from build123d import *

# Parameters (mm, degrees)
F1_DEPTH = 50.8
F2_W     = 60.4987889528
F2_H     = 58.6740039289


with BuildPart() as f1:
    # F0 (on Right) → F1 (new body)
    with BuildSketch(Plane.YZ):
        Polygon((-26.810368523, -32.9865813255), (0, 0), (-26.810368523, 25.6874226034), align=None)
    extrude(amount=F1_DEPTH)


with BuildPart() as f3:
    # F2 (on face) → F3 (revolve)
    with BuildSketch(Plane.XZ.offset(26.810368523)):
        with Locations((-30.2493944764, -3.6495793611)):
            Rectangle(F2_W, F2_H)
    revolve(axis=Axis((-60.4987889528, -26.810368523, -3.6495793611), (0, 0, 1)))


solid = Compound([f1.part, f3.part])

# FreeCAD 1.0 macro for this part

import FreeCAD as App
import Part
import Sketcher
from FreeCAD import Vector
Q = App.Units.Quantity

doc = App.newDocument("Part")
body = doc.addObject("PartDesign::Body", "Body")

sketch1 = body.newObject("Sketcher::SketchObject", "Sketch")
sketch1.AttachmentSupport = (doc.getObject("YZ_Plane"), [""])
sketch1.MapMode = "FlatFace"
sketch1.addGeometry([
    Part.LineSegment(Vector(-27, -33, 0), Vector(0, 0, 0)),
    Part.LineSegment(Vector(0, 0, 0), Vector(-27, 26, 0)),
    Part.LineSegment(Vector(-27, 26, 0), Vector(-27, -33, 0)),
], False)
sketch1.addConstraint([
    Sketcher.Constraint("Coincident", 0, 2, 1, 1),
    Sketcher.Constraint("Coincident", 1, 2, 2, 1),
    Sketcher.Constraint("Coincident", 2, 2, 0, 1),
    Sketcher.Constraint("Vertical", 2),
    Sketcher.Constraint("Coincident", 0, 2, -1, 1),
    Sketcher.Constraint("DistanceY", 2, 2, 2, 1, Q("2.3100002 in")),
    Sketcher.Constraint("Distance", 0, 42.507769),
    Sketcher.Constraint("DistanceX", 1, 2, -1, 1, 26.810369),
])
pad1 = body.newObject("PartDesign::Pad", "Pad")
pad1.Profile = sketch1
pad1.Length = Q("2 in")
body2 = doc.addObject("PartDesign::Body", "Body001")

sketch2 = body2.newObject("Sketcher::SketchObject", "Sketch001")
sketch2.AttachmentSupport = (doc.getObject("XZ_Plane001"), [""])
sketch2.MapMode = "FlatFace"
sketch2.AttachmentOffset = App.Placement(Vector(0, 0, 26.810369), App.Rotation())
sketch2.addGeometry([
    Part.LineSegment(Vector(-60, 26, 0), Vector(-60, -33, 0)),
    Part.LineSegment(Vector(-60, -33, 0), Vector(0, -33, 0)),
    Part.LineSegment(Vector(0, -33, 0), Vector(0, 26, 0)),
    Part.LineSegment(Vector(0, 26, 0), Vector(-60, 26, 0)),
], False)
sketch2.addGeometry(Part.LineSegment(Vector(-60, -33, 0), Vector(-60, 26, 0)), True)
sketch2.addConstraint([
    Sketcher.Constraint("Coincident", 0, 2, 1, 1),
    Sketcher.Constraint("Coincident", 1, 2, 2, 1),
    Sketcher.Constraint("Coincident", 2, 2, 3, 1),
    Sketcher.Constraint("Coincident", 3, 2, 0, 1),
    Sketcher.Constraint("Vertical", 0),
    Sketcher.Constraint("Horizontal", 1),
    Sketcher.Constraint("Vertical", 2),
    Sketcher.Constraint("Horizontal", 3),
    Sketcher.Constraint("Vertical", 4),
    Sketcher.Constraint("Coincident", 4, 1, 0, 2),
    Sketcher.Constraint("PointOnObject", 1, 2, -2),
    Sketcher.Constraint("Horizontal", 2, 2, 4, 2),
    Sketcher.Constraint("DistanceY", 0, 2, 0, 1, Q("2.3100002 in")),
    Sketcher.Constraint("DistanceX", 1, 1, 1, 2, 60.498789),
    Sketcher.Constraint("DistanceY", 0, 2, -1, 1, 32.986581),
])
revolution = body2.newObject("PartDesign::Revolution", "Revolution")
revolution.Profile = sketch2
revolution.ReferenceAxis = (sketch2, ["Axis0"])
revolution.Angle = 360

doc.recompute()
